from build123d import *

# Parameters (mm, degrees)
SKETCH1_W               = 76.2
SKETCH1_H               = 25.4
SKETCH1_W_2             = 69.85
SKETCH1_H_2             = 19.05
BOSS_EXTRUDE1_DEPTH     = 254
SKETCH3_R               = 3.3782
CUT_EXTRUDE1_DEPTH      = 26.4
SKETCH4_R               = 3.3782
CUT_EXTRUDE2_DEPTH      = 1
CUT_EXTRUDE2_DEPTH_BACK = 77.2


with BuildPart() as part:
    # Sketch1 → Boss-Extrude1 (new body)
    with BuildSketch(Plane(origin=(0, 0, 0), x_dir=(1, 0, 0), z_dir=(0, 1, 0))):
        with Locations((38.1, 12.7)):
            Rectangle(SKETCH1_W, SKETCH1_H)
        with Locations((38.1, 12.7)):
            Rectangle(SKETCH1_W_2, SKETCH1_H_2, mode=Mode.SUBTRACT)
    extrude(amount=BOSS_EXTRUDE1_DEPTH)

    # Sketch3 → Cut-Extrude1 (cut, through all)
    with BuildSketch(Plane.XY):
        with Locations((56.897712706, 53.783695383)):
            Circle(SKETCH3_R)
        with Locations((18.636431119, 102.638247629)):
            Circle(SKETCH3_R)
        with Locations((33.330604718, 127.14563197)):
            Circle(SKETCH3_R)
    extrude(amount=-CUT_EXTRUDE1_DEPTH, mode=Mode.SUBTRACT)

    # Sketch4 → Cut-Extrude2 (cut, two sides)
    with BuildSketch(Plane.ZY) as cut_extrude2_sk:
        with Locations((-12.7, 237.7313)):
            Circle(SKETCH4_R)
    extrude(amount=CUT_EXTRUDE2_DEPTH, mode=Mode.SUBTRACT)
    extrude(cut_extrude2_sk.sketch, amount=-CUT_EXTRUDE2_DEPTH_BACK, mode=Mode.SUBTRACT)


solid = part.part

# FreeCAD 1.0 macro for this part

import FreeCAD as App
import Part
import Sketcher
Q = App.Units.Quantity


def add_polygon(sketch, points):
    """Adds a closed chain of lines whose ends are joined by coincident constraints."""
    first, n = sketch.GeometryCount, len(points)
    for a, b in zip(points, points[1:] + points[:1]):
        sketch.addGeometry(Part.LineSegment(App.Vector(*a, 0), App.Vector(*b, 0)), False)
    for i in range(n):
        sketch.addConstraint(Sketcher.Constraint("Coincident", first + i, 2, first + (i + 1) % n, 1))

doc = App.newDocument("Part")
body = doc.addObject("PartDesign::Body", "Body")

# Sketch on XZ plane
sketch1 = body.newObject("Sketcher::SketchObject", "Sketch")
sketch1.AttachmentSupport = (doc.getObject("XZ_Plane"), [""])
sketch1.MapMode = "FlatFace"
add_polygon(sketch1, [(0, -25.4), (0, 0), (76.2, 0), (76.2, -25.4)])  # lines 0-3
add_polygon(sketch1, [(73.025, -3.175), (3.175, -3.175), (3.175, -22.225), (73.025, -22.225)])  # lines 4-7
sketch1.addConstraint([
    Sketcher.Constraint("Vertical", 0),
    Sketcher.Constraint("Horizontal", 1),
    Sketcher.Constraint("Vertical", 2),
    Sketcher.Constraint("Horizontal", 3),
    Sketcher.Constraint("Horizontal", 4),
    Sketcher.Constraint("Vertical", 5),
    Sketcher.Constraint("Horizontal", 6),
    Sketcher.Constraint("Vertical", 7),
    Sketcher.Constraint("Coincident", 0, 2, -1, 1),
    Sketcher.Constraint("DistanceX", 1, 1, 1, 2, Q("3 in")),
    Sketcher.Constraint("DistanceY", 0, 1, 0, 2, Q("1 in")),
    Sketcher.Constraint("DistanceX", 4, 2, 4, 1, Q("2.75 in")),
    Sketcher.Constraint("DistanceY", 5, 2, 5, 1, Q("0.75 in")),
    Sketcher.Constraint("DistanceX", -1, 1, 4, 2, Q("0.125 in")),
    Sketcher.Constraint("DistanceY", 4, 2, -1, 1, Q("0.125 in")),
])
pad1 = body.newObject("PartDesign::Pad", "Pad")
pad1.Profile = sketch1
pad1.Length = Q("10 in")
pad1.Reversed = True

# Sketch on XY plane
sketch2 = body.newObject("Sketcher::SketchObject", "Sketch001")
sketch2.AttachmentSupport = (doc.getObject("XY_Plane"), [""])
sketch2.MapMode = "FlatFace"
sketch2.addGeometry([
    Part.Circle(App.Vector(56.897713, 53.783695, 0), App.Vector(0, 0, 1), 3.3782),
    Part.Circle(App.Vector(18.636431, 102.638248, 0), App.Vector(0, 0, 1), 3.3782),
    Part.Circle(App.Vector(33.330605, 127.145632, 0), App.Vector(0, 0, 1), 3.3782),
], False)
sketch2.addConstraint([
    Sketcher.Constraint("Equal", 0, 1),
    Sketcher.Constraint("Equal", 1, 2),
    Sketcher.Constraint("Diameter", 0, Q("0.266 in")),
    Sketcher.Constraint("DistanceX", -1, 1, 1, 3, 18.636431),
    Sketcher.Constraint("DistanceY", -1, 1, 2, 3, 127.145632),
    Sketcher.Constraint("DistanceX", 1, 3, 0, 3, 38.261282),
    Sketcher.Constraint("DistanceY", -1, 1, 0, 3, 53.783695),
    Sketcher.Constraint("DistanceY", -1, 1, 1, 3, 102.638248),
    Sketcher.Constraint("DistanceX", -1, 1, 2, 3, 33.330605),
])
pocket1 = body.newObject("PartDesign::Pocket", "Pocket")
pocket1.Profile = sketch2
pocket1.Type = "ThroughAll"

# Sketch on YZ plane
sketch3 = body.newObject("Sketcher::SketchObject", "Sketch002")
sketch3.AttachmentSupport = (doc.getObject("YZ_Plane"), [""])
sketch3.MapMode = "FlatFace"
sketch3.addGeometry(Part.Circle(App.Vector(237.7313, -12.7, 0), App.Vector(0, 0, 1), 3.3782), False)
sketch3.addConstraint([
    Sketcher.Constraint("Diameter", 0, Q("0.266 in")),
    Sketcher.Constraint("DistanceY", 0, 3, -1, 1, Q("0.5 in")),
    Sketcher.Constraint("DistanceX", -1, 1, 0, 3, Q("9.3595 in")),
])
pocket2 = body.newObject("PartDesign::Pocket", "Pocket001")
pocket2.Profile = sketch3
pocket2.Type = "ThroughAll"
pocket2.Midplane = True

doc.recompute()
